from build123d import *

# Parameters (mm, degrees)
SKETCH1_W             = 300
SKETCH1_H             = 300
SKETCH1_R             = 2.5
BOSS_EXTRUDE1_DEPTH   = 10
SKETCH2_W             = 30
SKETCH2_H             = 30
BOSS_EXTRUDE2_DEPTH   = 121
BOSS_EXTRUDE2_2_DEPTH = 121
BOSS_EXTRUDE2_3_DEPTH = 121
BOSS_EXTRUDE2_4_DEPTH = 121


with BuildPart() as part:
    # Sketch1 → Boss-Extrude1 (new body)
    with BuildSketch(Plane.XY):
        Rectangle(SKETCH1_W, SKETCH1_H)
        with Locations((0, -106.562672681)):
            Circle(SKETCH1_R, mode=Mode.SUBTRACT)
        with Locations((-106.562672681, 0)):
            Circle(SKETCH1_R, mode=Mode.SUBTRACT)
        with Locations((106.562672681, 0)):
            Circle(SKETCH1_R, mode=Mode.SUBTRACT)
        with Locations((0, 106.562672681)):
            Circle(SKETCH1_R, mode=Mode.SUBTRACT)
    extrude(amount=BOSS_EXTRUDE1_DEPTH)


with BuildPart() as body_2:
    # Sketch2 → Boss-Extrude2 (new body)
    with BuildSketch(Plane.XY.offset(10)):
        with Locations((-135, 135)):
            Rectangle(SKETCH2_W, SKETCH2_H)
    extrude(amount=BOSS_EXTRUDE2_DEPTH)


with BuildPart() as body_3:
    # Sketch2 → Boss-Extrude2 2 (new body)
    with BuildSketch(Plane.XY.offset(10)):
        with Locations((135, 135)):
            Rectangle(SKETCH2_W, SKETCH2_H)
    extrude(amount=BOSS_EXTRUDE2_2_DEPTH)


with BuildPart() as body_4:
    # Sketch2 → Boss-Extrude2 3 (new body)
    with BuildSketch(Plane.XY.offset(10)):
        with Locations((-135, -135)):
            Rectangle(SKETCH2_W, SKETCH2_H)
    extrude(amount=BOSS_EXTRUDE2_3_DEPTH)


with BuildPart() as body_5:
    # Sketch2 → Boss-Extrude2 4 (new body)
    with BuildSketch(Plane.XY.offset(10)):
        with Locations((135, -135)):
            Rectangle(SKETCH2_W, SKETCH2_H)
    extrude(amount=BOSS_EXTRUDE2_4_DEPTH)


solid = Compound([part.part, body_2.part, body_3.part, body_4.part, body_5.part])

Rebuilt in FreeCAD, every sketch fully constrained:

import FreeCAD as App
import Part
import Sketcher

V = App.Vector


def add_polygon(sketch, points):
    """Adds a closed chain of lines whose ends are joined by coincident constraints."""
    first, n = sketch.GeometryCount, len(points)
    for a, b in zip(points, points[1:] + points[:1]):
        sketch.addGeometry(Part.LineSegment(App.Vector(*a, 0), App.Vector(*b, 0)), False)
    for i in range(n):
        sketch.addConstraint(Sketcher.Constraint("Coincident", first + i, 2, first + (i + 1) % n, 1))

doc = App.newDocument("Part")
params = doc.addObject("Spreadsheet::Sheet", "Params")
for row, (alias, value) in enumerate([
    ("sketch1_diameter", "5 mm"),
    ("sketch1_width", "300 mm"),
    ("pad1_length", "10 mm"),
    ("sketch2_width", "30 mm"),
    ("pad2_length", "121 mm"),
    ("sketch3_width", "30 mm"),
    ("pad3_length", "121 mm"),
    ("sketch4_width", "30 mm"),
    ("pad4_length", "121 mm"),
    ("sketch5_width", "30 mm"),
    ("pad5_length", "121 mm"),
], start=1):
    params.set(f"A{row}", alias)
    params.set(f"B{row}", "=" + value)
    params.setAlias(f"B{row}", alias)

body = doc.addObject("PartDesign::Body", "Body")

# Sketch on XY plane
sketch1 = body.newObject("Sketcher::SketchObject", "Sketch")
sketch1.AttachmentSupport = (doc.getObject("XY_Plane"), [""])
sketch1.MapMode = "FlatFace"
add_polygon(sketch1, [(-150, 150), (-150, -150), (150, -150), (150, 150)])  # lines 0-3
sketch1.addGeometry(Part.Circle(V(0, -106.562673, 0), V(0, 0, 1), 2.5), False)  # 4
sketch1.addGeometry(Part.Circle(V(-106.562673, 0, 0), V(0, 0, 1), 2.5), False)  # 5
sketch1.addGeometry(Part.Circle(V(106.562673, 0, 0), V(0, 0, 1), 2.5), False)  # 6
sketch1.addGeometry(Part.Circle(V(0, 106.562673, 0), V(0, 0, 1), 2.5), False)  # 7
sketch1.addConstraint(Sketcher.Constraint("Vertical", 0))
sketch1.addConstraint(Sketcher.Constraint("Horizontal", 1))
sketch1.addConstraint(Sketcher.Constraint("Vertical", 2))
sketch1.addConstraint(Sketcher.Constraint("Horizontal", 3))
sketch1.addConstraint(Sketcher.Constraint("Equal", 4, 5))
sketch1.addConstraint(Sketcher.Constraint("Equal", 5, 6))
sketch1.addConstraint(Sketcher.Constraint("Equal", 6, 7))
sketch1.addConstraint(Sketcher.Constraint("Symmetric", 5, 3, 6, 3, -1, 1))
sketch1.addConstraint(Sketcher.Constraint("Symmetric", 4, 3, 7, 3, -1, 1))
sketch1.addConstraint(Sketcher.Constraint("Symmetric", 0, 2, 2, 2, -1, 1))
sketch1.addConstraint(Sketcher.Constraint("PointOnObject", 4, 3, -2))
sketch1.addConstraint(Sketcher.Constraint("PointOnObject", 5, 3, -1))
sketch1.addConstraint(Sketcher.Constraint("Equal", 3, 0))
sketch1.addConstraint(Sketcher.Constraint("Diameter", 4, 5.0))
sketch1.addConstraint(Sketcher.Constraint("DistanceX", 1, 1, 1, 2, 300.0))
sketch1.addConstraint(Sketcher.Constraint("DistanceY", 4, 3, -1, 1, 106.562673))
sketch1.addConstraint(Sketcher.Constraint("DistanceX", 5, 3, -1, 1, 106.562673))
sketch1.setExpression("Constraints[17]", "Params.sketch1_diameter")
sketch1.setExpression("Constraints[18]", "Params.sketch1_width")
pad1 = body.newObject("PartDesign::Pad", "Pad")
pad1.Profile = sketch1
pad1.setExpression("Length", "Params.pad1_length")
body2 = doc.addObject("PartDesign::Body", "Body001")

# Sketch on XY plane
sketch2 = body2.newObject("Sketcher::SketchObject", "Sketch001")
sketch2.AttachmentSupport = (doc.getObject("XY_Plane001"), [""])
sketch2.MapMode = "FlatFace"
sketch2.AttachmentOffset = App.Placement(V(0, 0, 10), App.Rotation())
add_polygon(sketch2, [(-150, 150), (-150, 120), (-120, 120), (-120, 150)])  # lines 0-3
sketch2.addConstraint(Sketcher.Constraint("Vertical", 0))
sketch2.addConstraint(Sketcher.Constraint("Horizontal", 1))
sketch2.addConstraint(Sketcher.Constraint("Vertical", 2))
sketch2.addConstraint(Sketcher.Constraint("Horizontal", 3))
sketch2.addConstraint(Sketcher.Constraint("Equal", 3, 0))
sketch2.addConstraint(Sketcher.Constraint("DistanceX", 1, 1, 1, 2, 30.0))
sketch2.addConstraint(Sketcher.Constraint("DistanceX", 0, 2, -1, 1, 150.0))
sketch2.addConstraint(Sketcher.Constraint("DistanceY", -1, 1, 0, 2, 120.0))
sketch2.setExpression("Constraints[9]", "Params.sketch2_width")
pad2 = body2.newObject("PartDesign::Pad", "Pad001")
pad2.Profile = sketch2
pad2.setExpression("Length", "Params.pad2_length")
body3 = doc.addObject("PartDesign::Body", "Body002")

# Sketch on XY plane
sketch3 = body3.newObject("Sketcher::SketchObject", "Sketch002")
sketch3.AttachmentSupport = (doc.getObject("XY_Plane002"), [""])
sketch3.MapMode = "FlatFace"
sketch3.AttachmentOffset = App.Placement(V(0, 0, 10), App.Rotation())
add_polygon(sketch3, [(120, 150), (120, 120), (150, 120), (150, 150)])  # lines 0-3
sketch3.addConstraint(Sketcher.Constraint("Vertical", 0))
sketch3.addConstraint(Sketcher.Constraint("Horizontal", 1))
sketch3.addConstraint(Sketcher.Constraint("Vertical", 2))
sketch3.addConstraint(Sketcher.Constraint("Horizontal", 3))
sketch3.addConstraint(Sketcher.Constraint("Equal", 3, 0))
sketch3.addConstraint(Sketcher.Constraint("DistanceX", 1, 1, 1, 2, 30.0))
sketch3.addConstraint(Sketcher.Constraint("DistanceX", -1, 1, 0, 2, 120.0))
sketch3.addConstraint(Sketcher.Constraint("DistanceY", -1, 1, 0, 2, 120.0))
sketch3.setExpression("Constraints[9]", "Params.sketch3_width")
pad3 = body3.newObject("PartDesign::Pad", "Pad002")
pad3.Profile = sketch3
pad3.setExpression("Length", "Params.pad3_length")
body4 = doc.addObject("PartDesign::Body", "Body003")

# Sketch on XY plane
sketch4 = body4.newObject("Sketcher::SketchObject", "Sketch003")
sketch4.AttachmentSupport = (doc.getObject("XY_Plane003"), [""])
sketch4.MapMode = "FlatFace"
sketch4.AttachmentOffset = App.Placement(V(0, 0, 10), App.Rotation())
add_polygon(sketch4, [(-150, -120), (-150, -150), (-120, -150), (-120, -120)])  # lines 0-3
sketch4.addConstraint(Sketcher.Constraint("Vertical", 0))
sketch4.addConstraint(Sketcher.Constraint("Horizontal", 1))
sketch4.addConstraint(Sketcher.Constraint("Vertical", 2))
sketch4.addConstraint(Sketcher.Constraint("Horizontal", 3))
sketch4.addConstraint(Sketcher.Constraint("Equal", 3, 0))
sketch4.addConstraint(Sketcher.Constraint("DistanceX", 1, 1, 1, 2, 30.0))
sketch4.addConstraint(Sketcher.Constraint("DistanceX", 0, 2, -1, 1, 150.0))
sketch4.addConstraint(Sketcher.Constraint("DistanceY", 0, 2, -1, 1, 150.0))
sketch4.setExpression("Constraints[9]", "Params.sketch4_width")
pad4 = body4.newObject("PartDesign::Pad", "Pad003")
pad4.Profile = sketch4
pad4.setExpression("Length", "Params.pad4_length")
body5 = doc.addObject("PartDesign::Body", "Body004")

# Sketch on XY plane
sketch5 = body5.newObject("Sketcher::SketchObject", "Sketch004")
sketch5.AttachmentSupport = (doc.getObject("XY_Plane004"), [""])
sketch5.MapMode = "FlatFace"
sketch5.AttachmentOffset = App.Placement(V(0, 0, 10), App.Rotation())
add_polygon(sketch5, [(120, -120), (120, -150), (150, -150), (150, -120)])  # lines 0-3
sketch5.addConstraint(Sketcher.Constraint("Vertical", 0))
sketch5.addConstraint(Sketcher.Constraint("Horizontal", 1))
sketch5.addConstraint(Sketcher.Constraint("Vertical", 2))
sketch5.addConstraint(Sketcher.Constraint("Horizontal", 3))
sketch5.addConstraint(Sketcher.Constraint("Equal", 3, 0))
sketch5.addConstraint(Sketcher.Constraint("DistanceX", 1, 1, 1, 2, 30.0))
sketch5.addConstraint(Sketcher.Constraint("DistanceX", -1, 1, 0, 2, 120.0))
sketch5.addConstraint(Sketcher.Constraint("DistanceY", 0, 2, -1, 1, 150.0))
sketch5.setExpression("Constraints[9]", "Params.sketch5_width")
pad5 = body5.newObject("PartDesign::Pad", "Pad004")
pad5.Profile = sketch5
pad5.setExpression("Length", "Params.pad5_length")

doc.recompute()
